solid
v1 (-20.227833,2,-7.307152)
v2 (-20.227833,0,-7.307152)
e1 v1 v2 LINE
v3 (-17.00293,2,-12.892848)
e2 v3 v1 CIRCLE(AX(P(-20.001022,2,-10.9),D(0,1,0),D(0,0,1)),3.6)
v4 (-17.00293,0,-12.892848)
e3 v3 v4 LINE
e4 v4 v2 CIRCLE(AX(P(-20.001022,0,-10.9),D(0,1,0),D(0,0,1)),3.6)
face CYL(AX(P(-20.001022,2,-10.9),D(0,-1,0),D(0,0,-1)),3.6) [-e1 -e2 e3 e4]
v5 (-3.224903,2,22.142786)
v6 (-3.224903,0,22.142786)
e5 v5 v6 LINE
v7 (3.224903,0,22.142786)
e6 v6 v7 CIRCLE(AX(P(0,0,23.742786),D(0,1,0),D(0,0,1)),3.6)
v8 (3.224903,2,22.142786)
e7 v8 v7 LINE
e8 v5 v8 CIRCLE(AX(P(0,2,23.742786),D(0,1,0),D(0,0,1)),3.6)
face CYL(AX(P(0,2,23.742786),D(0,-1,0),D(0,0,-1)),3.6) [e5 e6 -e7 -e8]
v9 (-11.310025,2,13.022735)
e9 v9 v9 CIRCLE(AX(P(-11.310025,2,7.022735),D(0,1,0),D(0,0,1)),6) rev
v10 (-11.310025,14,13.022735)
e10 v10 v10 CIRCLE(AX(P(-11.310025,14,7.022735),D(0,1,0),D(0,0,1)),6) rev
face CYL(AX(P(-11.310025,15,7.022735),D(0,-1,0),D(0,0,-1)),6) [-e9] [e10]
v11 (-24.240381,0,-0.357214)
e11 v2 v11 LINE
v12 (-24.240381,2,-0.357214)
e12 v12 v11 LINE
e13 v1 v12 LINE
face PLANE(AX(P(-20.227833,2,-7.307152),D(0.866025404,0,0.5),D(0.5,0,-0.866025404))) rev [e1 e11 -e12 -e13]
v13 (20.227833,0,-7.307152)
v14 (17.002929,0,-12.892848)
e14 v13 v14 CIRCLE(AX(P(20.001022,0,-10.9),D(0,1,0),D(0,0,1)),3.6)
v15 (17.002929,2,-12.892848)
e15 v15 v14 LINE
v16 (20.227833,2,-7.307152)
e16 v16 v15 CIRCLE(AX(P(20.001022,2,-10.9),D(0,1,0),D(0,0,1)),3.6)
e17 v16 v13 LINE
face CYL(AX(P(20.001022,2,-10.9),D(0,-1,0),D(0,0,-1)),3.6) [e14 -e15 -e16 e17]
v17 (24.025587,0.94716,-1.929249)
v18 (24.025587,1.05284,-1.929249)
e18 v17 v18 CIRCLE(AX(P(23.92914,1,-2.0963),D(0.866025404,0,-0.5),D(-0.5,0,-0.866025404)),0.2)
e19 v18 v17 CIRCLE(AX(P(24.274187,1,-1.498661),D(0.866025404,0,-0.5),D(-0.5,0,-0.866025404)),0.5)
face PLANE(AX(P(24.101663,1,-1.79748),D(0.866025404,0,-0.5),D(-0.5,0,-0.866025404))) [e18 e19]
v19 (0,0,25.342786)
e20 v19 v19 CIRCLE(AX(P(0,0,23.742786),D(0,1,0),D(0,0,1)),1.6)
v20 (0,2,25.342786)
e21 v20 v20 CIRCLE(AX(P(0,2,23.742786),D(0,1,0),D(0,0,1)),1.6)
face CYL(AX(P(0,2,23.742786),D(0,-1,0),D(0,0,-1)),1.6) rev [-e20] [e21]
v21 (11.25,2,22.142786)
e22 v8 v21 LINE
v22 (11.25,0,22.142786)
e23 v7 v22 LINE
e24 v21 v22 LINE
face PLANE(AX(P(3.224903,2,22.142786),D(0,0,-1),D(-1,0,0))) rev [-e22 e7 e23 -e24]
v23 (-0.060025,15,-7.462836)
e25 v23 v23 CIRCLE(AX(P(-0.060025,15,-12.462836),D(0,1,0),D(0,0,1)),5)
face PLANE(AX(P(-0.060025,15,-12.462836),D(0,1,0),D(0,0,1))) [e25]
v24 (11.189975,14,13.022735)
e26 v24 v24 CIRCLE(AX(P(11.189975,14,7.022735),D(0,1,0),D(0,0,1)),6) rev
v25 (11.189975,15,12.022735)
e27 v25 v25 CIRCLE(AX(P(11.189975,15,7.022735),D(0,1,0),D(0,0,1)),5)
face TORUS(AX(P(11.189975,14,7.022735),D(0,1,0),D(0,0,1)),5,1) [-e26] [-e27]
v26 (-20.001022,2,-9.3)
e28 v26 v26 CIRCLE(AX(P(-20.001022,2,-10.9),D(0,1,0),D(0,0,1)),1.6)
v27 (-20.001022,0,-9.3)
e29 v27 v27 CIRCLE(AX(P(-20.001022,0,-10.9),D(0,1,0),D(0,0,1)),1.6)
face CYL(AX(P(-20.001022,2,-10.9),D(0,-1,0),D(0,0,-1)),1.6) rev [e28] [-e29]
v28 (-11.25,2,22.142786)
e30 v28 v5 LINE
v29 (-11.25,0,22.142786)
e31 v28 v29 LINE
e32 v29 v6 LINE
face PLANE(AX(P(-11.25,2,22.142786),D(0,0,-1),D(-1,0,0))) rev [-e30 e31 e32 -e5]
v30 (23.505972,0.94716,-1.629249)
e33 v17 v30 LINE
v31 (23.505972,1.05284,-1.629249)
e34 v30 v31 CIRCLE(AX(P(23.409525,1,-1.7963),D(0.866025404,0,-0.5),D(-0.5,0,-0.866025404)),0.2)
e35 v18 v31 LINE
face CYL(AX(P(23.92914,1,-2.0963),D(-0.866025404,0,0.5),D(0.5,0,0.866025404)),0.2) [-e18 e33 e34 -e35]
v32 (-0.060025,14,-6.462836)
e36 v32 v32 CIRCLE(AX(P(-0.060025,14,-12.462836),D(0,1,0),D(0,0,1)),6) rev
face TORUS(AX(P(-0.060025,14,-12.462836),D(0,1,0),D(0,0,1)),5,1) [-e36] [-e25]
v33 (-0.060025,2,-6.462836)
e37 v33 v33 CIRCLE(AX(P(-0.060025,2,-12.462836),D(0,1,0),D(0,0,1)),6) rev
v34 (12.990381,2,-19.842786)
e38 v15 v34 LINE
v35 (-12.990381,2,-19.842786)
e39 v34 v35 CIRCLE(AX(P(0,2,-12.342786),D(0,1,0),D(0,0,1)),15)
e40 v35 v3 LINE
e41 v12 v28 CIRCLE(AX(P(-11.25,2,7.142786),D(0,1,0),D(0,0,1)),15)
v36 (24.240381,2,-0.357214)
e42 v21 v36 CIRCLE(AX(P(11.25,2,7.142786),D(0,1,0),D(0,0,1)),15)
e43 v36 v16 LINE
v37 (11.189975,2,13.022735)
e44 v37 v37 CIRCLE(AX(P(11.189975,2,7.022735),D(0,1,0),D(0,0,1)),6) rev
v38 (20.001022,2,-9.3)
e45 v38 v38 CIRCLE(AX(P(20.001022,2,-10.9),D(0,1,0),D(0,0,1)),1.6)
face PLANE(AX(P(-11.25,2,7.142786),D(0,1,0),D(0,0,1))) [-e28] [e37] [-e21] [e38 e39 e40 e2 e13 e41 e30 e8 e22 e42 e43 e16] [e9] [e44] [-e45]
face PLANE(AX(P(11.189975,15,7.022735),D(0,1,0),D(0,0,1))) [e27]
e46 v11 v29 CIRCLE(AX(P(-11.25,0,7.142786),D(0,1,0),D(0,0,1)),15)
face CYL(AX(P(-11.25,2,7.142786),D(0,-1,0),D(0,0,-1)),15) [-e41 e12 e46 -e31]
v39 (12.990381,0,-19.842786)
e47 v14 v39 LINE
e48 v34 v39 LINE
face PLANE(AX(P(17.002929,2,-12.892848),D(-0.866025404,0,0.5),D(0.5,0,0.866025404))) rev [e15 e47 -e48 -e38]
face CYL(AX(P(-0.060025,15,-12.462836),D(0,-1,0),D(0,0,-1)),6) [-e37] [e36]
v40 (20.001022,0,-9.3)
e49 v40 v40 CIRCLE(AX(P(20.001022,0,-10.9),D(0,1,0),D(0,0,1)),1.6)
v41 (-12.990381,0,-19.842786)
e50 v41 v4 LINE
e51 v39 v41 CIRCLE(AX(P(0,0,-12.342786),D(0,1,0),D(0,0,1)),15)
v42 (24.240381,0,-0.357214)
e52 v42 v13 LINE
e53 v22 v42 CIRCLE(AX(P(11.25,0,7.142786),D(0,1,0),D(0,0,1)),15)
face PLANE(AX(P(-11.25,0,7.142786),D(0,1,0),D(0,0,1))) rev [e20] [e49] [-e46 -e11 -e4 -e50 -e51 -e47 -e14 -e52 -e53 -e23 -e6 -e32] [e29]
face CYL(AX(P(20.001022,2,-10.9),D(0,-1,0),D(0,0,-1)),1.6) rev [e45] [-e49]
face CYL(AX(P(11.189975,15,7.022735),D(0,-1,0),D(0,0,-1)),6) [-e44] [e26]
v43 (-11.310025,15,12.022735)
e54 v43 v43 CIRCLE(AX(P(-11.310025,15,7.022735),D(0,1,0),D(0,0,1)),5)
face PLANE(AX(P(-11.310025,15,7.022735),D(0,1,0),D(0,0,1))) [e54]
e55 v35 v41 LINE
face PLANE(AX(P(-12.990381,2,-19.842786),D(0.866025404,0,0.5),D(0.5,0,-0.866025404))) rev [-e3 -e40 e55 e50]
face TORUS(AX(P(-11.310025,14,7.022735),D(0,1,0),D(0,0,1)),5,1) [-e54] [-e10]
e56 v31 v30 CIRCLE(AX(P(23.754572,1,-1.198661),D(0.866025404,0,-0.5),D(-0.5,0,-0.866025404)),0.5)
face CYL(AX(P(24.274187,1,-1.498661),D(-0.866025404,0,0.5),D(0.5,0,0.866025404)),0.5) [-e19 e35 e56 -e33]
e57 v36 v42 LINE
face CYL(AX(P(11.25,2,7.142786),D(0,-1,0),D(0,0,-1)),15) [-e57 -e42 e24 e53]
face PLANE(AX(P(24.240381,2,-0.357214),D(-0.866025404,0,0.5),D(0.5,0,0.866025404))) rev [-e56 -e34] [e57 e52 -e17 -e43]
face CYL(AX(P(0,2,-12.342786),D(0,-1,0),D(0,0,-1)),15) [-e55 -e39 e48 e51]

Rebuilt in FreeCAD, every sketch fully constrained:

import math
import FreeCAD as App
import Part
import Sketcher
from FreeCAD import Vector
Q = App.Units.Quantity


def edges_at(feature, points):
    """Names of the edges that pass closest to the given points."""
    edges = feature.Shape.Edges
    near = lambda p: min(range(len(edges)), key=lambda i: edges[i].distToShape(Part.Vertex(*p))[0])
    return sorted({f"Edge{near(p) + 1}" for p in points})

doc = App.newDocument("Part")
body = doc.addObject("PartDesign::Body", "Body")

# Sketch on XZ plane
sketch1 = body.newObject("Sketcher::SketchObject", "Sketch")
sketch1.AttachmentSupport = (doc.getObject("XZ_Plane"), [""])
sketch1.MapMode = "FlatFace"
sketch1.addGeometry([
    Part.LineSegment(Vector(-11.25, 22.142786, 0), Vector(-3.224903, 22.142786, 0)),  # 0
    Part.ArcOfCircle(Part.Circle(Vector(0, 23.742786, 0), Vector(0, 0, 1), 3.6), math.radians(-26.3878), math.radians(206.3878)),  # 1
    Part.LineSegment(Vector(3.224903, 22.142786, 0), Vector(11.25, 22.142786, 0)),  # 2
    Part.ArcOfCircle(Part.Circle(Vector(11.25, 7.142786, 0), Vector(0, 0, 1), 15), math.radians(-30), math.radians(90)),  # 3
    Part.LineSegment(Vector(24.240381, -0.357214, 0), Vector(20.227833, -7.307152, 0)),  # 4
    Part.ArcOfCircle(Part.Circle(Vector(20.001022, -10.9, 0), Vector(0, 0, 1), 3.6), math.radians(-146.3878), math.radians(86.3878)),  # 5
    Part.LineSegment(Vector(17.002929, -12.892848, 0), Vector(12.990381, -19.842786, 0)),  # 6
    Part.ArcOfCircle(Part.Circle(Vector(0, -12.342786, 0), Vector(0, 0, 1), 15), math.radians(-150), math.radians(-30)),  # 7
    Part.LineSegment(Vector(-12.990381, -19.842786, 0), Vector(-17.00293, -12.892848, 0)),  # 8
    Part.ArcOfCircle(Part.Circle(Vector(-20.001022, -10.9, 0), Vector(0, 0, 1), 3.6), math.radians(93.6122), math.radians(326.3878)),  # 9
    Part.LineSegment(Vector(-20.227833, -7.307152, 0), Vector(-24.240381, -0.357214, 0)),  # 10
    Part.ArcOfCircle(Part.Circle(Vector(-11.25, 7.142786, 0), Vector(0, 0, 1), 15), math.radians(90), math.radians(210)),  # 11
    Part.Circle(Vector(0, 23.742786, 0), Vector(0, 0, 1), 1.6),  # 12
    Part.Circle(Vector(-20.001022, -10.9, 0), Vector(0, 0, 1), 1.6),  # 13
    Part.Circle(Vector(20.001022, -10.9, 0), Vector(0, 0, 1), 1.6),  # 14
], False)
sketch1.addConstraint([
    Sketcher.Constraint("Coincident", 0, 2, 1, 2),
    Sketcher.Constraint("Coincident", 1, 1, 2, 1),
    Sketcher.Constraint("Tangent", 2, 2, 3, 2),
    Sketcher.Constraint("Tangent", 3, 1, 4, 1),
    Sketcher.Constraint("Coincident", 4, 2, 5, 2),
    Sketcher.Constraint("Coincident", 5, 1, 6, 1),
    Sketcher.Constraint("Tangent", 6, 2, 7, 2),
    Sketcher.Constraint("Tangent", 7, 1, 8, 1),
    Sketcher.Constraint("Coincident", 8, 2, 9, 2),
    Sketcher.Constraint("Coincident", 9, 1, 10, 1),
    Sketcher.Constraint("Tangent", 10, 2, 11, 2),
    Sketcher.Constraint("Tangent", 11, 1, 0, 1),
    Sketcher.Constraint("Horizontal", 0),
    Sketcher.Constraint("Horizontal", 2),
    Sketcher.Constraint("Coincident", 12, 3, 1, 3),
    Sketcher.Constraint("Coincident", 13, 3, 9, 3),
    Sketcher.Constraint("Coincident", 14, 3, 5, 3),
    Sketcher.Constraint("Equal", 1, 5),
    Sketcher.Constraint("Equal", 3, 7),
    Sketcher.Constraint("Equal", 5, 9),
    Sketcher.Constraint("Equal", 7, 11),
    Sketcher.Constraint("Equal", 12, 13),
    Sketcher.Constraint("Equal", 13, 14),
    Sketcher.Constraint("Symmetric", 5, 3, 9, 3, -2),
    Sketcher.Constraint("Symmetric", 3, 3, 11, 3, -2),
    Sketcher.Constraint("Symmetric", 6, 2, 7, 1, -2),
    Sketcher.Constraint("PointOnObject", 1, 3, -2),
    Sketcher.Constraint("Parallel", 4, 6),
    Sketcher.Constraint("Parallel", 8, 10),
    Sketcher.Constraint("Equal", 4, 6),
    Sketcher.Constraint("Radius", 3, Q("15 mm")),
    Sketcher.Constraint("Diameter", 12, Q("3.2 mm")),
    Sketcher.Constraint("Radius", 1, Q("3.6 mm")),
    Sketcher.Constraint("Angle", 4, Q("-120 deg")),
    Sketcher.Constraint("DistanceY", 5, 3, -1, 1, Q("10.9 mm")),
    Sketcher.Constraint("DistanceY", 3, 3, 1, 3, Q("16.6 mm")),
    Sketcher.Constraint("DistanceX", 11, 3, 3, 3, Q("22.5 mm")),
    Sketcher.Constraint("DistanceX", -1, 1, 5, 3, Q("20.001022 mm")),
    Sketcher.Constraint("DistanceX", -1, 1, 5, 1, Q("17.002929 mm")),
])
pad1 = body.newObject("PartDesign::Pad", "Pad")
pad1.Profile = sketch1
pad1.Length = 2
pad1.Reversed = True

# Sketch on XZ plane
sketch2 = body.newObject("Sketcher::SketchObject", "Sketch001")
sketch2.AttachmentSupport = (doc.getObject("XZ_Plane"), [""])
sketch2.MapMode = "FlatFace"
sketch2.addGeometry([
    Part.Circle(Vector(-0.060025, -12.462836, 0), Vector(0, 0, 1), 6),
    Part.Circle(Vector(11.189975, 7.022735, 0), Vector(0, 0, 1), 6),
    Part.Circle(Vector(-11.310025, 7.022735, 0), Vector(0, 0, 1), 6),
], False)
sketch2.addConstraint([
    Sketcher.Constraint("Equal", 0, 1),
    Sketcher.Constraint("Equal", 1, 2),
    Sketcher.Constraint("Horizontal", 1, 3, 2, 3),
    Sketcher.Constraint("Diameter", 0, Q("12 mm")),
    Sketcher.Constraint("DistanceX", 2, 3, 1, 3, Q("22.5 mm")),
    Sketcher.Constraint("DistanceX", 0, 3, 1, 3, Q("11.25 mm")),
    Sketcher.Constraint("DistanceY", 0, 3, 1, 3, Q("19.485572 mm")),
    Sketcher.Constraint("DistanceX", 0, 3, -1, 1, Q("0.060025 mm")),
    Sketcher.Constraint("DistanceY", 0, 3, -1, 1, Q("12.462836 mm")),
])
pad2 = body.newObject("PartDesign::Pad", "Pad001")
pad2.Profile = sketch2
pad2.Length = 15
pad2.Reversed = True
doc.recompute()

fillet = body.newObject("PartDesign::Fillet", "Fillet")
fillet.Base = (pad2, edges_at(pad2, [(-6.06, 15, -12.463), (5.19, 15, 7.023), (-17.31, 15, 7.023)]))
fillet.Radius = 1

# Sketch on an angled plane
sketch3 = body.newObject("Sketcher::SketchObject", "Sketch002")
sketch3.Placement = App.Placement(Vector(18.334964, 0, -10.585696), App.Rotation(Vector(-0.5, 0, -0.866025404), Vector(0, 1, 0), Vector(0.866025404, 0, -0.5), "ZXY"))
sketch3.addGeometry([
    Part.ArcOfCircle(Part.Circle(Vector(-10.839215, 1, 0), Vector(0, 0, 1), 0.5), math.radians(6.066305), math.radians(353.933695)),
    Part.ArcOfCircle(Part.Circle(Vector(-10.149121, 1, 0), Vector(0, 0, 1), 0.2), math.radians(-164.680682), math.radians(164.680682)),
], False)
sketch3.addConstraint([
    Sketcher.Constraint("Coincident", 0, 1, 1, 2),
    Sketcher.Constraint("Coincident", 1, 1, 0, 2),
    Sketcher.Constraint("Horizontal", 0, 3, 1, 3),
    Sketcher.Constraint("Radius", 0, Q("0.5 mm")),
    Sketcher.Constraint("Radius", 1, Q("0.2 mm")),
    Sketcher.Constraint("DistanceY", -1, 1, 0, 3, Q("1 mm")),
    Sketcher.Constraint("DistanceX", 0, 3, 0, 1, Q("0.4972 mm")),
    Sketcher.Constraint("DistanceX", 1, 3, -1, 1, Q("10.149121 mm")),
])
pad3 = body.newObject("PartDesign::Pad", "Pad002")
pad3.Profile = sketch3
pad3.Length = 0.6

doc.recompute()
